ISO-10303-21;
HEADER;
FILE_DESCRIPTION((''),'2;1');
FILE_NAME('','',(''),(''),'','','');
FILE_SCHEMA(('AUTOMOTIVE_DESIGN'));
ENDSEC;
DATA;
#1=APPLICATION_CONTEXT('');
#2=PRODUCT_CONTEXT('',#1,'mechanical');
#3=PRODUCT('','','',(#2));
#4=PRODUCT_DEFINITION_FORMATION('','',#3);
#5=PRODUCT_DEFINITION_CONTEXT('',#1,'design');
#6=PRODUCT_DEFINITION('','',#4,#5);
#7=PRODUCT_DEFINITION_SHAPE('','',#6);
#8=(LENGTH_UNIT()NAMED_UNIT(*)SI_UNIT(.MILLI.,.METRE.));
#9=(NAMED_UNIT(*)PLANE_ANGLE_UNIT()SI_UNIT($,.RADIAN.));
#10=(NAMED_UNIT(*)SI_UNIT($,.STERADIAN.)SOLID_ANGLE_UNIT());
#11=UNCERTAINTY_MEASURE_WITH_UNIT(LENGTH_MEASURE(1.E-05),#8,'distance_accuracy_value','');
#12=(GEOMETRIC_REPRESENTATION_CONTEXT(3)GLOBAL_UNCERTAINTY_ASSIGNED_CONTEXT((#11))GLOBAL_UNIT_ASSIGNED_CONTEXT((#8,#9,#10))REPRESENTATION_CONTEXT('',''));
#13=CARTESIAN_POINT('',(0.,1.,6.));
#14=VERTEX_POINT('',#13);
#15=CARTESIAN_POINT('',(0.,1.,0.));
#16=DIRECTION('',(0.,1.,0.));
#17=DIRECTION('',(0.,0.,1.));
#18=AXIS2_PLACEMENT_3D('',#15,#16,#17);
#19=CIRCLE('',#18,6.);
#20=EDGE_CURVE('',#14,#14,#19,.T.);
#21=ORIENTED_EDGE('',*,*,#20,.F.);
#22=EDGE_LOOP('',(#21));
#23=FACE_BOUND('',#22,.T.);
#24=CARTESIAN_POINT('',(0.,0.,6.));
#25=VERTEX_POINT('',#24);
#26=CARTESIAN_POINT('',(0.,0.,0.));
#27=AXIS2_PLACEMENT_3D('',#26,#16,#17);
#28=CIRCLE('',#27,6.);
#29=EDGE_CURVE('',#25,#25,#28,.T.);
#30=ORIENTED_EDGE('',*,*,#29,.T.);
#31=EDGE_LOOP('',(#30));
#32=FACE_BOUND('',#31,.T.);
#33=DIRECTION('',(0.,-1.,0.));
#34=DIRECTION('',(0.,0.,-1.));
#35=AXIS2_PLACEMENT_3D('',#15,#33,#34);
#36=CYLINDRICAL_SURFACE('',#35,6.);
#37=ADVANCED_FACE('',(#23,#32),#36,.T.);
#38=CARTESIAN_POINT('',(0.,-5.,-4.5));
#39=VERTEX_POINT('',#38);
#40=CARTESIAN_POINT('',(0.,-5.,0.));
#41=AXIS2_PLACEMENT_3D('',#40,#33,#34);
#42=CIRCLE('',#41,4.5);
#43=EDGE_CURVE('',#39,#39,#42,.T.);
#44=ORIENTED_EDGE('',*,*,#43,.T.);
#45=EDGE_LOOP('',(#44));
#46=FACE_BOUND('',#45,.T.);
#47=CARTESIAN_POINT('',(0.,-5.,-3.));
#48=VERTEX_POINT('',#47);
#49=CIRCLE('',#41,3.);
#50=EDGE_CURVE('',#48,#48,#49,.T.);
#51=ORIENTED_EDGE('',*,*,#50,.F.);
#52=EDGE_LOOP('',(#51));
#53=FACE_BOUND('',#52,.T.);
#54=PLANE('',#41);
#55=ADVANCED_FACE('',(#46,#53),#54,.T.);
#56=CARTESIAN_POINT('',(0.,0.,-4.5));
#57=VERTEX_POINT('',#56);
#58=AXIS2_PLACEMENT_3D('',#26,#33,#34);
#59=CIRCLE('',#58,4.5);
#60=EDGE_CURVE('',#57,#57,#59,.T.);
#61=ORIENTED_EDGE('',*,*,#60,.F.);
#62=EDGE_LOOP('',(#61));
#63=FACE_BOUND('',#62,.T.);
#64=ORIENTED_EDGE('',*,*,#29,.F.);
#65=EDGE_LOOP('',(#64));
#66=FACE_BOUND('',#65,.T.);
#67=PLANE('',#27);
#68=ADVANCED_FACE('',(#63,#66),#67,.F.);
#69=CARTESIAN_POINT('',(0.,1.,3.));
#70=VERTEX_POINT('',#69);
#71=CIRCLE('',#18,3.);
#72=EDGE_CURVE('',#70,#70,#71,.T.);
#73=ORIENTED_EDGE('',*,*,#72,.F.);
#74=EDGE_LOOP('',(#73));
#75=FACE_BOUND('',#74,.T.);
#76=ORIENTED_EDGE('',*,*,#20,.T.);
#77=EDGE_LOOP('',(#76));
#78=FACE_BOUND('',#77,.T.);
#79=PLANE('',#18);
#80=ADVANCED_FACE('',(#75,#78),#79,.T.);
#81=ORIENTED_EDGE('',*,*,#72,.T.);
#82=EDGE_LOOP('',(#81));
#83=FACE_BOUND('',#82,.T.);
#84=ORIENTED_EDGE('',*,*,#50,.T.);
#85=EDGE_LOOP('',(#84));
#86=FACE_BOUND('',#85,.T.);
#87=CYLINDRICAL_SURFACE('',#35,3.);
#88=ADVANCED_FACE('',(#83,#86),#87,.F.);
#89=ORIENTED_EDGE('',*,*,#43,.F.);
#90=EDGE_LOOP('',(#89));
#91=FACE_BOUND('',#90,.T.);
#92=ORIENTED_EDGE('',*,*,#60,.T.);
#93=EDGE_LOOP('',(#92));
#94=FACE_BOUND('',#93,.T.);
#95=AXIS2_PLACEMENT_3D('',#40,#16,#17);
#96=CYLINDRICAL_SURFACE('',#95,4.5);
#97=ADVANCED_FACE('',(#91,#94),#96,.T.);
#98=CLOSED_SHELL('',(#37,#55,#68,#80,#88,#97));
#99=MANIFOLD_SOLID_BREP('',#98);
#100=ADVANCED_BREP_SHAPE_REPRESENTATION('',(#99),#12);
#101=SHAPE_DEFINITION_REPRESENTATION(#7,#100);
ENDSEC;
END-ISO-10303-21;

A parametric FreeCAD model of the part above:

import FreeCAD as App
import Part
import Sketcher

V = App.Vector
Q = App.Units.Quantity

doc = App.newDocument("Part")
body = doc.addObject("PartDesign::Body", "Body")

sketch1 = body.newObject("Sketcher::SketchObject", "Sketch")
sketch1.AttachmentSupport = (doc.getObject("XZ_Plane"), [""])
sketch1.MapMode = "FlatFace"
sketch1.addGeometry(Part.Circle(V(0, 0, 0), V(0, 0, 1), 6), False)
sketch1.addGeometry(Part.Circle(V(0, 0, 0), V(0, 0, 1), 3), False)
sketch1.addConstraint(Sketcher.Constraint("Coincident", 0, 3, -1, 1))
sketch1.addConstraint(Sketcher.Constraint("Coincident", 1, 3, -1, 1))
sketch1.addConstraint(Sketcher.Constraint("Diameter", 0, Q("12 mm")))
sketch1.addConstraint(Sketcher.Constraint("Diameter", 1, Q("6 mm")))
pad1 = body.newObject("PartDesign::Pad", "Pad")
pad1.Profile = sketch1
pad1.Length = 1
pad1.Reversed = True

sketch2 = body.newObject("Sketcher::SketchObject", "Sketch001")
sketch2.AttachmentSupport = (doc.getObject("XZ_Plane"), [""])
sketch2.MapMode = "FlatFace"
sketch2.AttachmentOffset = App.Placement(V(0, 0, 5), App.Rotation())
sketch2.addGeometry(Part.Circle(V(0, 0, 0), V(0, 0, 1), 4.5), False)
sketch2.addGeometry(Part.Circle(V(0, 0, 0), V(0, 0, 1), 3), False)
sketch2.addConstraint(Sketcher.Constraint("Coincident", 0, 3, -1, 1))
sketch2.addConstraint(Sketcher.Constraint("Coincident", 1, 3, -1, 1))
sketch2.addConstraint(Sketcher.Constraint("Diameter", 0, Q("9 mm")))
sketch2.addConstraint(Sketcher.Constraint("Diameter", 1, Q("6 mm")))
pad2 = body.newObject("PartDesign::Pad", "Pad001")
pad2.Profile = sketch2
pad2.Length = 5
pad2.Reversed = True

doc.recompute()
